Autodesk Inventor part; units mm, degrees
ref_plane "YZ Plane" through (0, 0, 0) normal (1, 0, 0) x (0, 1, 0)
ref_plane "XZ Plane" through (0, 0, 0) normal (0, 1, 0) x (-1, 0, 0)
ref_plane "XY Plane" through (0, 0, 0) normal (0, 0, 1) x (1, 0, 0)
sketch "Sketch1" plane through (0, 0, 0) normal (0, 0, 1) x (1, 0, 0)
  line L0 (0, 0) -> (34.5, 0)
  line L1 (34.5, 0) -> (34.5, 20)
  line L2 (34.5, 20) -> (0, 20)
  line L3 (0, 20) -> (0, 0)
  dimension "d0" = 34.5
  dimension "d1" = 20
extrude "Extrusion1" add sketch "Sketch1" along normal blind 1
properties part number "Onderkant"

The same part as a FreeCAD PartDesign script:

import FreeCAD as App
import Part
import Sketcher
Q = App.Units.Quantity


def add_polygon(sketch, points):
    """Adds a closed chain of lines whose ends are joined by coincident constraints."""
    first, n = sketch.GeometryCount, len(points)
    for a, b in zip(points, points[1:] + points[:1]):
        sketch.addGeometry(Part.LineSegment(App.Vector(*a, 0), App.Vector(*b, 0)), False)
    for i in range(n):
        sketch.addConstraint(Sketcher.Constraint("Coincident", first + i, 2, first + (i + 1) % n, 1))

doc = App.newDocument("Part")
body = doc.addObject("PartDesign::Body", "Body")

# Sketch on XY plane
sketch1 = body.newObject("Sketcher::SketchObject", "Sketch")
sketch1.AttachmentSupport = (doc.getObject("XY_Plane"), [""])
sketch1.MapMode = "FlatFace"
add_polygon(sketch1, [(0, 20), (0, 0), (34, 0), (34, 20)])  # lines 0-3
sketch1.addConstraint([
    Sketcher.Constraint("Vertical", 0),
    Sketcher.Constraint("Horizontal", 1),
    Sketcher.Constraint("Vertical", 2),
    Sketcher.Constraint("Horizontal", 3),
    Sketcher.Constraint("Coincident", 0, 2, -1, 1),
    Sketcher.Constraint("DistanceY", 0, 2, 0, 1, Q("20 mm")),
    Sketcher.Constraint("DistanceX", 1, 1, 1, 2, Q("34.5 mm")),
])
pad1 = body.newObject("PartDesign::Pad", "Pad")
pad1.Profile = sketch1
pad1.Length = 1

doc.recompute()
